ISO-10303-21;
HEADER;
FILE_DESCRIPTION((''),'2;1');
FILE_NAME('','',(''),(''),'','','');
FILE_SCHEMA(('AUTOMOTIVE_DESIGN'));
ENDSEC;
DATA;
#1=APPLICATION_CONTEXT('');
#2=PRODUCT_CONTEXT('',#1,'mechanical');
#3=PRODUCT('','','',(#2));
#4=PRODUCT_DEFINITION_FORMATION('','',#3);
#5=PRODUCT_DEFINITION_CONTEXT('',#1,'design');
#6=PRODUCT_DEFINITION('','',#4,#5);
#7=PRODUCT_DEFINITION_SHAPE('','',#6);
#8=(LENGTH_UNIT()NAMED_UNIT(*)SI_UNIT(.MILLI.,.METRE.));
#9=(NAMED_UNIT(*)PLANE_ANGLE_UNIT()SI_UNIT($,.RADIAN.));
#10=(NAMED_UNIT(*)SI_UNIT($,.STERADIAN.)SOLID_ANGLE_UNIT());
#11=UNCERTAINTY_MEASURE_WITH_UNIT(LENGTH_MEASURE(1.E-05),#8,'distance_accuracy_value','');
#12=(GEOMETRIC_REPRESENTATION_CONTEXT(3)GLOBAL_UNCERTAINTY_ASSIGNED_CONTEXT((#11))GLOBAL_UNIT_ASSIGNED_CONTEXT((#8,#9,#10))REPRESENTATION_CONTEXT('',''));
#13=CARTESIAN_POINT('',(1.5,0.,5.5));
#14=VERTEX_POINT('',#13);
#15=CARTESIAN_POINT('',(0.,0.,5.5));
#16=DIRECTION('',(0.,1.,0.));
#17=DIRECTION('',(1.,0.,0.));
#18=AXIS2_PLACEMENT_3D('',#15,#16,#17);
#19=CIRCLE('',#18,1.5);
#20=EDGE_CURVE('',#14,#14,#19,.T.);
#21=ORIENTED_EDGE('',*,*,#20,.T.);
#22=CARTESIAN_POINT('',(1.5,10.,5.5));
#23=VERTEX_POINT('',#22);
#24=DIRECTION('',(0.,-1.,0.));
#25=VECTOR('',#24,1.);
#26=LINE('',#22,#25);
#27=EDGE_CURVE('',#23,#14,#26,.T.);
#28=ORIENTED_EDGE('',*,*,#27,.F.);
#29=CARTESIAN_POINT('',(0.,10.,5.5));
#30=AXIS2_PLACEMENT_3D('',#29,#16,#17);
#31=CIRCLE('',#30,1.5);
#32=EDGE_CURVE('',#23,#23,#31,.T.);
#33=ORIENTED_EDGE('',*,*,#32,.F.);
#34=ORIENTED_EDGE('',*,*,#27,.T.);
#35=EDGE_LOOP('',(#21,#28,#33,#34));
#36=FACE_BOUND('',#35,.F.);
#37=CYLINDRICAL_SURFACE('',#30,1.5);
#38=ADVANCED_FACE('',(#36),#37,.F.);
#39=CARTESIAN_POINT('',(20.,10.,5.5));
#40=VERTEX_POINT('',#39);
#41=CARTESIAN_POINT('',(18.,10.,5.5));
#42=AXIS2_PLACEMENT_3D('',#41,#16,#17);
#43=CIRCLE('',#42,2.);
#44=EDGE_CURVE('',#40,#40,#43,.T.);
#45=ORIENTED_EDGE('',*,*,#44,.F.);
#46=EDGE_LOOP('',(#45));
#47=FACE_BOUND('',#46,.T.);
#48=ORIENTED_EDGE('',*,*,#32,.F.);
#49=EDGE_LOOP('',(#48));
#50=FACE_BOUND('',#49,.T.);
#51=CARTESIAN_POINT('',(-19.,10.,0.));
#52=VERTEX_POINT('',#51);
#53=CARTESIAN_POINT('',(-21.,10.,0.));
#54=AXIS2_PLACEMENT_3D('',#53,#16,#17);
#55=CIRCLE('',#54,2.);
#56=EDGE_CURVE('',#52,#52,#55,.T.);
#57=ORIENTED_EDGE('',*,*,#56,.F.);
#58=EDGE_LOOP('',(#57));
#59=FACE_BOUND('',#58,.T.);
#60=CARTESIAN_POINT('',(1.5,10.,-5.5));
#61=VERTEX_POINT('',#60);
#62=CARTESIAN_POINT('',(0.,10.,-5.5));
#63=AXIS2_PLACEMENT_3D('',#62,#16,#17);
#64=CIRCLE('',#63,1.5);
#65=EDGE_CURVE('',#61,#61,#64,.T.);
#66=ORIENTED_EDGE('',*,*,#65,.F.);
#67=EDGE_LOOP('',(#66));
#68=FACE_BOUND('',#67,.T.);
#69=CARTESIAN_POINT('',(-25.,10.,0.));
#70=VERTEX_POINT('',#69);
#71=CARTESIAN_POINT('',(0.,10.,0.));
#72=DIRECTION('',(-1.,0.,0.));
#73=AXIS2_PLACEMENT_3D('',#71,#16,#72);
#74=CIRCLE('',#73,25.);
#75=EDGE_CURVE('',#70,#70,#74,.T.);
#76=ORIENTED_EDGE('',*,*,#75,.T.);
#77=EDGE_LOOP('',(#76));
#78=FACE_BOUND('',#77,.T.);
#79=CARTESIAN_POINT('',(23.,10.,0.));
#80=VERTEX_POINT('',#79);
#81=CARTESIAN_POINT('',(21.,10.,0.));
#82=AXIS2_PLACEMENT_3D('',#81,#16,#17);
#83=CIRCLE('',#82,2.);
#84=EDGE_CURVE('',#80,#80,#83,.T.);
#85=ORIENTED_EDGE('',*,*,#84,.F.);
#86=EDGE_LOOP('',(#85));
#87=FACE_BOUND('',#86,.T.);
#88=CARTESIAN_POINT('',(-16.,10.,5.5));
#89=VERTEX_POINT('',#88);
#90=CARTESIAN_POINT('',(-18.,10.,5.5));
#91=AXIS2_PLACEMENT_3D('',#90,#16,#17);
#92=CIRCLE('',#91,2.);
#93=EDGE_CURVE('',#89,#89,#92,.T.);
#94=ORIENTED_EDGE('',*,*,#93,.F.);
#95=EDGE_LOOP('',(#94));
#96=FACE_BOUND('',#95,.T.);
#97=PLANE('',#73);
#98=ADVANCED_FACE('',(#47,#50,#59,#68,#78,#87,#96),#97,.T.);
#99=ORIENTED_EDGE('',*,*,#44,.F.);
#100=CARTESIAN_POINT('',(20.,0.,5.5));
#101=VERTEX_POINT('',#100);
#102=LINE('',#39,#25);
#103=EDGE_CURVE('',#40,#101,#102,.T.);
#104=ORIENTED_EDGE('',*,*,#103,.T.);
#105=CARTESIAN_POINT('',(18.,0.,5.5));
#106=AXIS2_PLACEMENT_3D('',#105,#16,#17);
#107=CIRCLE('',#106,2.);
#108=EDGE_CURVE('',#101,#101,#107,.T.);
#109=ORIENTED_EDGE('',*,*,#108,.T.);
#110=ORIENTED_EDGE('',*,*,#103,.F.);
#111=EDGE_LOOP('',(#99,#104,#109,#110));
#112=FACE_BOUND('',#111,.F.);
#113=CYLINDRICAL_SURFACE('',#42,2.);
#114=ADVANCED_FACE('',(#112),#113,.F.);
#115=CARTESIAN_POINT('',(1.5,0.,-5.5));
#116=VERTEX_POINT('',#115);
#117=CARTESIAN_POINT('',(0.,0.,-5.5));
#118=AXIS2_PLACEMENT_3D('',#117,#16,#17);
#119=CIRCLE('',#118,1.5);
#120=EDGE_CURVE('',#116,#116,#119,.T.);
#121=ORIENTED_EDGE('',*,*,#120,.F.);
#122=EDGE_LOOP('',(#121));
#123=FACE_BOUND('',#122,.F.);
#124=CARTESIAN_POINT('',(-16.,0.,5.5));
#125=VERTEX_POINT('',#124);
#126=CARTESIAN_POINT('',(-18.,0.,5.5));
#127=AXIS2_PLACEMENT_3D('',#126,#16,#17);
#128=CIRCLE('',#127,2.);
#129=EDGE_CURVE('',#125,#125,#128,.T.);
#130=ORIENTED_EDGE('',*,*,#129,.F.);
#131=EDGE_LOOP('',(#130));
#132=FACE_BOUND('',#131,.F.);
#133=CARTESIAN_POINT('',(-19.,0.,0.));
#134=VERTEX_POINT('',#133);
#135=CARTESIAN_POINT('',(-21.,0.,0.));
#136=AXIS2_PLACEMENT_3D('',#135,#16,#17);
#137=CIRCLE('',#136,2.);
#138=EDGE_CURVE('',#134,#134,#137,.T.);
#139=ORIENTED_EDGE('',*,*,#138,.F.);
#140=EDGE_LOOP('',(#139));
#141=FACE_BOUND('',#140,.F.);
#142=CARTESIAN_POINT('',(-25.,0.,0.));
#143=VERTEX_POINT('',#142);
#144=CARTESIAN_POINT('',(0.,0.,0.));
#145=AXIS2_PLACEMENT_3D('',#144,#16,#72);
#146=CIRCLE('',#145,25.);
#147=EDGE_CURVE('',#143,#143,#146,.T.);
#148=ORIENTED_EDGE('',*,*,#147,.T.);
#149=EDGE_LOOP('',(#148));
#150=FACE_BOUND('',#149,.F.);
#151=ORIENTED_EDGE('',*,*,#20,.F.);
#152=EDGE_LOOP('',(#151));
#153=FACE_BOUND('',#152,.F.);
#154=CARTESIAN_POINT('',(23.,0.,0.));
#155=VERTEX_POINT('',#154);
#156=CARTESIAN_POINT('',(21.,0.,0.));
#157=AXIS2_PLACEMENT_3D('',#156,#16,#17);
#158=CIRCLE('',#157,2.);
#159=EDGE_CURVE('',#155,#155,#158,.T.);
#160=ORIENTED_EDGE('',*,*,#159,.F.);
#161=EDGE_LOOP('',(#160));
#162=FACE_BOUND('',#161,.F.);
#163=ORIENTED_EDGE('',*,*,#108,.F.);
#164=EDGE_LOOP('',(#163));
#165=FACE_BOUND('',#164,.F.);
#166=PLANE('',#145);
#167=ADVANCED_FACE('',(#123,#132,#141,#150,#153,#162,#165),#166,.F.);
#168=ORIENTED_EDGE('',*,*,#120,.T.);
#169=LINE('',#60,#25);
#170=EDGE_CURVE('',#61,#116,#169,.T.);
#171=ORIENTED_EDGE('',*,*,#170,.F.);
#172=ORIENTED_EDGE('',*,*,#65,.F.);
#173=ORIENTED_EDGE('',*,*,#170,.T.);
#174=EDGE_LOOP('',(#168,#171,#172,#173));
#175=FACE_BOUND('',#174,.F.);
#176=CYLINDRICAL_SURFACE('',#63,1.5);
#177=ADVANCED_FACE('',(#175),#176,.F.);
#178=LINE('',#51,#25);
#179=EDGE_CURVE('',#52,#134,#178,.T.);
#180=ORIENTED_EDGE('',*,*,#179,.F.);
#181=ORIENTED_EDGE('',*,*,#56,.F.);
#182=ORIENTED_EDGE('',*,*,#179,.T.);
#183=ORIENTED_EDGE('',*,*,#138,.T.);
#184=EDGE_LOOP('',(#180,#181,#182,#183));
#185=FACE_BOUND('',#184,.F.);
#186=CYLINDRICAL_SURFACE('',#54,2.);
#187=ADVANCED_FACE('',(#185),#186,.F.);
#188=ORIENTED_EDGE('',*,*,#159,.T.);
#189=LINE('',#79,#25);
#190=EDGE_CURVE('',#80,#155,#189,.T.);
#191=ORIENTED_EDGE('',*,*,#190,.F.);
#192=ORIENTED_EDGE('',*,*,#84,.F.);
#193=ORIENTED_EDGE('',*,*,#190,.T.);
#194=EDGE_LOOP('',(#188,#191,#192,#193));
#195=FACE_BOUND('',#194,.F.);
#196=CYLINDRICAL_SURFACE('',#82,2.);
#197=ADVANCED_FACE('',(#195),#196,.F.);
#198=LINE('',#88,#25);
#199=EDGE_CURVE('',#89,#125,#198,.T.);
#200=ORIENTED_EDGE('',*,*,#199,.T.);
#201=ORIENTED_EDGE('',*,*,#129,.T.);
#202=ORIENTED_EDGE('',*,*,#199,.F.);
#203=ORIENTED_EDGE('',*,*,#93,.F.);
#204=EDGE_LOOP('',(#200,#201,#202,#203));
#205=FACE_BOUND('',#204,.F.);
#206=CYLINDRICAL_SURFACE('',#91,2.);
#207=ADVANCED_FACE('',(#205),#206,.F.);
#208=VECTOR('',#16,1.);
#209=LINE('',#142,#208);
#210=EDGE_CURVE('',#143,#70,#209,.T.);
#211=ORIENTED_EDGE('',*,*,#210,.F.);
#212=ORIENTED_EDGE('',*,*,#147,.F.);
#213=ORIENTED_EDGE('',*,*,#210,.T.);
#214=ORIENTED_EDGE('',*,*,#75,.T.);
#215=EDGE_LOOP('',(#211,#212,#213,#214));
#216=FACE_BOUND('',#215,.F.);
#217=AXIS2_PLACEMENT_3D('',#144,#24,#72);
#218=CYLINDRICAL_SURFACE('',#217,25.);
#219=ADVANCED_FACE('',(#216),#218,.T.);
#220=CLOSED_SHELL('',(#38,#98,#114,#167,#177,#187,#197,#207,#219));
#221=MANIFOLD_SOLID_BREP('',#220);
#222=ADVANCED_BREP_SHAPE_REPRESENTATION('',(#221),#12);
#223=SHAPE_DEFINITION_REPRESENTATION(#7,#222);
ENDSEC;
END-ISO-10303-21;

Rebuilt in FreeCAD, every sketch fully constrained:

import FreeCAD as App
import Part
import Sketcher
from FreeCAD import Vector

doc = App.newDocument("Part")
body = doc.addObject("PartDesign::Body", "Body")

# Sketch on XZ plane
sketch1 = body.newObject("Sketcher::SketchObject", "Sketch")
sketch1.AttachmentSupport = (doc.getObject("XZ_Plane"), [""])
sketch1.MapMode = "FlatFace"
sketch1.addGeometry(Part.Circle(Vector(0, 0, 0), Vector(0, 0, 1), 25), False)
sketch1.addConstraint([
    Sketcher.Constraint("Coincident", 0, 3, -1, 1),
    Sketcher.Constraint("Diameter", 0, 50.0),
])
pad1 = body.newObject("PartDesign::Pad", "Pad")
pad1.Profile = sketch1
pad1.Length = 10
pad1.Reversed = True

# Sketch on XZ plane
sketch2 = body.newObject("Sketcher::SketchObject", "Sketch001")
sketch2.AttachmentSupport = (doc.getObject("XZ_Plane"), [""])
sketch2.MapMode = "FlatFace"
sketch2.AttachmentOffset = App.Placement(Vector(0, 0, -10), App.Rotation())
sketch2.addGeometry([
    Part.Circle(Vector(0, 5.5, 0), Vector(0, 0, 1), 1.5),  # 0
    Part.Circle(Vector(0, -5.5, 0), Vector(0, 0, 1), 1.5),  # 1
    Part.Circle(Vector(-18, 5.5, 0), Vector(0, 0, 1), 2),  # 2
    Part.Circle(Vector(-21, 0, 0), Vector(0, 0, 1), 2),  # 3
    Part.Circle(Vector(21, 0, 0), Vector(0, 0, 1), 2),  # 4
    Part.Circle(Vector(18, 5.5, 0), Vector(0, 0, 1), 2),  # 5
], False)
sketch2.addConstraint([
    Sketcher.Constraint("Equal", 0, 1),
    Sketcher.Constraint("Equal", 2, 3),
    Sketcher.Constraint("Equal", 3, 4),
    Sketcher.Constraint("Equal", 4, 5),
    Sketcher.Constraint("Symmetric", 0, 3, 1, 3, -1, 1),
    Sketcher.Constraint("Symmetric", 3, 3, 4, 3, -1, 1),
    Sketcher.Constraint("Symmetric", 2, 3, 5, 3, -2),
    Sketcher.Constraint("PointOnObject", 0, 3, -2),
    Sketcher.Constraint("PointOnObject", 3, 3, -1),
    Sketcher.Constraint("Horizontal", 0, 3, 2, 3),
    Sketcher.Constraint("Diameter", 0, 3.0),
    Sketcher.Constraint("Diameter", 2, 4.0),
    Sketcher.Constraint("DistanceX", 2, 3, -1, 1, 18.0),
    Sketcher.Constraint("DistanceX", 3, 3, -1, 1, 21.0),
    Sketcher.Constraint("DistanceY", -1, 1, 0, 3, 5.5),
])
pocket1 = body.newObject("PartDesign::Pocket", "Pocket")
pocket1.Profile = sketch2
pocket1.Length = 10
pocket1.Reversed = True

doc.recompute()
